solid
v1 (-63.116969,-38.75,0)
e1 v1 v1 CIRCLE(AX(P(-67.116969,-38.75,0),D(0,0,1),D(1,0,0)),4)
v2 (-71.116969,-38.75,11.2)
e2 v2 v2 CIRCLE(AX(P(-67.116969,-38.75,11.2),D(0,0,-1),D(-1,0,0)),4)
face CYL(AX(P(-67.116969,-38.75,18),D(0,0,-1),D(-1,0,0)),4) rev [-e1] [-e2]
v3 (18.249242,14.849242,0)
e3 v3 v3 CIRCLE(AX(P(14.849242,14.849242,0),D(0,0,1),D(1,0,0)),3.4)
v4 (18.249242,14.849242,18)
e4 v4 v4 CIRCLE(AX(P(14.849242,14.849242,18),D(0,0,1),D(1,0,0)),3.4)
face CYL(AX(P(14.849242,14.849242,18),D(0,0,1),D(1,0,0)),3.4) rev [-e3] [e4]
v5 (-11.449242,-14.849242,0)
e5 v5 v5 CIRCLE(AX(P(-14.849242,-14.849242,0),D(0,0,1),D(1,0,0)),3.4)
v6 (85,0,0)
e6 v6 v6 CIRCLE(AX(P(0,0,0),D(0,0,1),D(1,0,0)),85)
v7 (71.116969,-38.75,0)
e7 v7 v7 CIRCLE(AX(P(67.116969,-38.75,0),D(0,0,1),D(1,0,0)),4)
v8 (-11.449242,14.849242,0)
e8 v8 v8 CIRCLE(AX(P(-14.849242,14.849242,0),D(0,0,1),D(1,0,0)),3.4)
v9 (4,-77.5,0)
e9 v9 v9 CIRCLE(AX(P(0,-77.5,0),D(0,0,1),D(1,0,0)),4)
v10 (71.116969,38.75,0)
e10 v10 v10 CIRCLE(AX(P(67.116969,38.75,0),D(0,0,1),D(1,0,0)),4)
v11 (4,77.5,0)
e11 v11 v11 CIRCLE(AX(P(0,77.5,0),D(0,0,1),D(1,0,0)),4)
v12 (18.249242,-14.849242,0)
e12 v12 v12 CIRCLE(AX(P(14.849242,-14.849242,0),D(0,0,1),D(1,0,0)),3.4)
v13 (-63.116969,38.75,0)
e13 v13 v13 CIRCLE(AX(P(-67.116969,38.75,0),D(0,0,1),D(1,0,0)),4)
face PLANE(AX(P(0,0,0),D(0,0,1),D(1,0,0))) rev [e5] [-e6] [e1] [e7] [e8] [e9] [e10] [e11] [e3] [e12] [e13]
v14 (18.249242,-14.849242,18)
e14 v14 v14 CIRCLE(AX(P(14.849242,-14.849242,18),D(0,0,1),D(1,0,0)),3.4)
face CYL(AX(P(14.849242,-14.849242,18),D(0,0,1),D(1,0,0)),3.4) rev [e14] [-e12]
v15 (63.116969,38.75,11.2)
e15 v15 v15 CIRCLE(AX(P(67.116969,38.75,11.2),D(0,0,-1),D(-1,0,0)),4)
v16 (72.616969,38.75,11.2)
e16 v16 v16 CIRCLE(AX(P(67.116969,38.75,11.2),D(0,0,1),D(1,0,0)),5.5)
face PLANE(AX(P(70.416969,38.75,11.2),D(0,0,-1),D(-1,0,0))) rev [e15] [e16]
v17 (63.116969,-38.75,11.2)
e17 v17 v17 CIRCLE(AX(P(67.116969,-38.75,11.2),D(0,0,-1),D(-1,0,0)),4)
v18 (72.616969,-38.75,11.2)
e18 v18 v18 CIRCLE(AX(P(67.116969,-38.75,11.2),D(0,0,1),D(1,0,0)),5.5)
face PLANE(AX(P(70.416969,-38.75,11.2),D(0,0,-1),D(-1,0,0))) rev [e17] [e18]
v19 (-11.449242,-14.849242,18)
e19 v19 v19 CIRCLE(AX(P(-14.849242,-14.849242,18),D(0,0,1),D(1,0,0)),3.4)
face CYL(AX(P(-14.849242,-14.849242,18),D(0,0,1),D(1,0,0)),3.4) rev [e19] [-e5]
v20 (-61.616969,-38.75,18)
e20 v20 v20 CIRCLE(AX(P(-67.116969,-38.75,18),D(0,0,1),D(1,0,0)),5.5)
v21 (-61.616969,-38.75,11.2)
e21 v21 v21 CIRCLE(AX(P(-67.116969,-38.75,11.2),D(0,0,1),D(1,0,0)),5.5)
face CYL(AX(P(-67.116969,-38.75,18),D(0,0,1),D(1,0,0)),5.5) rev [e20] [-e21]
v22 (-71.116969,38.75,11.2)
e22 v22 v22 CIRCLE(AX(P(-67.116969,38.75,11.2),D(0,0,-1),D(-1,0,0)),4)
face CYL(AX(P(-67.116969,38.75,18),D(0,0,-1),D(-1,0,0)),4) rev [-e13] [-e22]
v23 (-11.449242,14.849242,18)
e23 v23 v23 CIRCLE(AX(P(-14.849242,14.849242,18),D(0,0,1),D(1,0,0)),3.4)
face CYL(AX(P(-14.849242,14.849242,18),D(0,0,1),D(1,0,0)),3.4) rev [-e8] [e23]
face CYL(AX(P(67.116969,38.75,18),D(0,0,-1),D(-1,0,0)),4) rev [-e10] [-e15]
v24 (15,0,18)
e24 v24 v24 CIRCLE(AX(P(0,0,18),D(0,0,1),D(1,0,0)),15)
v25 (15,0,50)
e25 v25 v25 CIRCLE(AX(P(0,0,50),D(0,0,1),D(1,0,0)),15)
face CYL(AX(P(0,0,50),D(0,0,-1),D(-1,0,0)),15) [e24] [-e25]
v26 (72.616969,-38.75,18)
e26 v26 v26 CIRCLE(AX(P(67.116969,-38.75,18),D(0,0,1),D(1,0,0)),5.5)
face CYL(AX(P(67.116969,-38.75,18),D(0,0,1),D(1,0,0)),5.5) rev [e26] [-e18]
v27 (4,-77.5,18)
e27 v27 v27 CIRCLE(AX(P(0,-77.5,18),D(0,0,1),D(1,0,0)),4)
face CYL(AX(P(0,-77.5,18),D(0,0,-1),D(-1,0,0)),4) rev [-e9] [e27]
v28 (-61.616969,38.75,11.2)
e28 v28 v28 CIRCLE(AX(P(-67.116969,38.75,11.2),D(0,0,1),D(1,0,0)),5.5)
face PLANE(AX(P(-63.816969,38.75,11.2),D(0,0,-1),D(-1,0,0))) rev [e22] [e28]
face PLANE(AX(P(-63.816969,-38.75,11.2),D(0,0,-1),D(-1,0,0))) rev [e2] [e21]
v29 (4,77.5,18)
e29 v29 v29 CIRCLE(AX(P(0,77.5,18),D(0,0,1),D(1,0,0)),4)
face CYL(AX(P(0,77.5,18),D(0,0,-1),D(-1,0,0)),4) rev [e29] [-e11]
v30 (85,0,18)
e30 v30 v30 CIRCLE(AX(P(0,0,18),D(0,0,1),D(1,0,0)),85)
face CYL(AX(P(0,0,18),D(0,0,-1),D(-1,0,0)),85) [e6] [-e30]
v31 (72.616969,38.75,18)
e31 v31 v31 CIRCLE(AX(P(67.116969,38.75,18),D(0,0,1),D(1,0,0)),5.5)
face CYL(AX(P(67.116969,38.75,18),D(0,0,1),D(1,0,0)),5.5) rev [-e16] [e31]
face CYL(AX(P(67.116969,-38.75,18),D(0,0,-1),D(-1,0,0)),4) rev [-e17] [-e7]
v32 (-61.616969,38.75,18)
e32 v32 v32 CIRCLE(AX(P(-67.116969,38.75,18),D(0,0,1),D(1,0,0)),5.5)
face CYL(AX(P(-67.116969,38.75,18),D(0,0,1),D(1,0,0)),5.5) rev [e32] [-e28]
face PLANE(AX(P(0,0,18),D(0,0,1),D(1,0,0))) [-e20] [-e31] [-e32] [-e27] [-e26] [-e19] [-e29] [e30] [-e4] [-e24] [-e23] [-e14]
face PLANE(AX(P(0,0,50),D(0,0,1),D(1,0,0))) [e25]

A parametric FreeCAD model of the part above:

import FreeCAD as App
import Part
import Sketcher

doc = App.newDocument("Part")
params = doc.addObject("Spreadsheet::Sheet", "Params")
for row, (alias, value) in enumerate([
    ("sketch1_diameter", "170 mm"),
    ("sketch1_diameter2", "8 mm"),
    ("sketch1_diameter3", "6 mm"),
    ("pad1_length", "18 mm"),
    ("sketch2_diameter", "6.6 mm"),
    ("hole_diameter", "6.6 mm"),
    ("hole_cbore_diameter", "11 mm"),
    ("hole_cbore_depth", "6.8 mm"),
    ("sketch3_diameter", "6.8 mm"),
    ("hole2_diameter", "6.8 mm"),
    ("sketch4_diameter", "30 mm"),
    ("pad2_length", "32 mm"),
], start=1):
    params.set(f"A{row}", alias)
    params.set(f"B{row}", "=" + value)
    params.setAlias(f"B{row}", alias)

body = doc.addObject("PartDesign::Body", "Body")

sketch1 = body.newObject("Sketcher::SketchObject", "Sketch")
sketch1.AttachmentSupport = (doc.getObject("XY_Plane"), [""])
sketch1.MapMode = "FlatFace"
sketch1.addGeometry([
    Part.Circle(App.Vector(0, 0, 0), App.Vector(0, 0, 1), 85),
    Part.Circle(App.Vector(-67.116969, -38.75, 0), App.Vector(0, 0, 1), 4),
    Part.Circle(App.Vector(-14.849242, -14.849242, 0), App.Vector(0, 0, 1), 3),
    Part.Circle(App.Vector(0, -77.5, 0), App.Vector(0, 0, 1), 4),
    Part.Circle(App.Vector(14.849242, -14.849242, 0), App.Vector(0, 0, 1), 3),
    Part.Circle(App.Vector(67.116969, -38.75, 0), App.Vector(0, 0, 1), 4),
    Part.Circle(App.Vector(-67.116969, 38.75, 0), App.Vector(0, 0, 1), 4),
    Part.Circle(App.Vector(-14.849242, 14.849242, 0), App.Vector(0, 0, 1), 3),
    Part.Circle(App.Vector(14.849242, 14.849242, 0), App.Vector(0, 0, 1), 3),
    Part.Circle(App.Vector(67.116969, 38.75, 0), App.Vector(0, 0, 1), 4),
    Part.Circle(App.Vector(0, 77.5, 0), App.Vector(0, 0, 1), 4),
], False)
sketch1.addConstraint([
    Sketcher.Constraint("Coincident", 0, 3, -1, 1),
    Sketcher.Constraint("Equal", 1, 3),
    Sketcher.Constraint("Equal", 2, 4),
    Sketcher.Constraint("Equal", 3, 5),
    Sketcher.Constraint("Equal", 5, 6),
    Sketcher.Constraint("Equal", 4, 7),
    Sketcher.Constraint("Equal", 7, 8),
    Sketcher.Constraint("Equal", 6, 9),
    Sketcher.Constraint("Equal", 9, 10),
    Sketcher.Constraint("Symmetric", 5, 3, 6, 3, -1, 1),
    Sketcher.Constraint("Symmetric", 4, 3, 7, 3, -1, 1),
    Sketcher.Constraint("Symmetric", 2, 3, 8, 3, -1, 1),
    Sketcher.Constraint("Symmetric", 1, 3, 9, 3, -1, 1),
    Sketcher.Constraint("Symmetric", 3, 3, 10, 3, -1, 1),
    Sketcher.Constraint("Symmetric", 2, 3, 4, 3, -2),
    Sketcher.Constraint("Symmetric", 1, 3, 5, 3, -2),
    Sketcher.Constraint("PointOnObject", 3, 3, -2),
    Sketcher.Constraint("Diameter", 0, 170.0),
    Sketcher.Constraint("Diameter", 1, 8.0),
    Sketcher.Constraint("Diameter", 2, 6.0),
    Sketcher.Constraint("DistanceY", 3, 3, -1, 1, 77.5),
    Sketcher.Constraint("DistanceY", 1, 3, 6, 3, 77.5),
    Sketcher.Constraint("DistanceX", 1, 3, -1, 1, 67.116969),
    Sketcher.Constraint("DistanceX", 1, 3, 4, 3, 81.966211),
    Sketcher.Constraint("DistanceY", 2, 3, -1, 1, 14.849242),
])
sketch1.setExpression("Constraints[17]", "Params.sketch1_diameter")
sketch1.setExpression("Constraints[18]", "Params.sketch1_diameter2")
sketch1.setExpression("Constraints[19]", "Params.sketch1_diameter3")
pad1 = body.newObject("PartDesign::Pad", "Pad")
pad1.Profile = sketch1
pad1.setExpression("Length", "Params.pad1_length")

sketch2 = body.newObject("Sketcher::SketchObject", "Sketch001")
sketch2.AttachmentSupport = (doc.getObject("XY_Plane"), [""])
sketch2.MapMode = "FlatFace"
sketch2.AttachmentOffset = App.Placement(App.Vector(0, 0, 18), App.Rotation())
sketch2.addGeometry([
    Part.Circle(App.Vector(-67.116969, 38.75, 0), App.Vector(0, 0, 1), 3.3),
    Part.Circle(App.Vector(67.116969, 38.75, 0), App.Vector(0, 0, 1), 3.3),
    Part.Circle(App.Vector(67.116969, -38.75, 0), App.Vector(0, 0, 1), 3.3),
    Part.Circle(App.Vector(-67.116969, -38.75, 0), App.Vector(0, 0, 1), 3.3),
], False)
sketch2.addConstraint([
    Sketcher.Constraint("Equal", 0, 1),
    Sketcher.Constraint("Equal", 1, 2),
    Sketcher.Constraint("Equal", 2, 3),
    Sketcher.Constraint("Symmetric", 0, 3, 2, 3, -1, 1),
    Sketcher.Constraint("Symmetric", 1, 3, 3, 3, -1, 1),
    Sketcher.Constraint("Symmetric", 0, 3, 1, 3, -2),
    Sketcher.Constraint("Diameter", 0, 6.6),
    Sketcher.Constraint("DistanceY", 2, 3, 1, 3, 77.5),
    Sketcher.Constraint("DistanceX", 0, 3, -1, 1, 67.116969),
])
sketch2.setExpression("Constraints[6]", "Params.sketch2_diameter")
doc.recompute()
hole = body.newObject("PartDesign::Hole", "Hole")
hole.Profile = sketch2
hole.ThreadType = "None"
hole.setExpression("Diameter", "Params.hole_diameter")
hole.DepthType = "ThroughAll"
hole.HoleCutType = "Counterbore"
hole.setExpression("HoleCutDiameter", "Params.hole_cbore_diameter")
hole.setExpression("HoleCutDepth", "Params.hole_cbore_depth")

sketch3 = body.newObject("Sketcher::SketchObject", "Sketch002")
sketch3.AttachmentSupport = (doc.getObject("XY_Plane"), [""])
sketch3.MapMode = "FlatFace"
sketch3.AttachmentOffset = App.Placement(App.Vector(0, 0, 18), App.Rotation())
sketch3.addGeometry([
    Part.Circle(App.Vector(-14.849242, 14.849242, 0), App.Vector(0, 0, 1), 3.4),
    Part.Circle(App.Vector(14.849242, 14.849242, 0), App.Vector(0, 0, 1), 3.4),
    Part.Circle(App.Vector(14.849242, -14.849242, 0), App.Vector(0, 0, 1), 3.4),
    Part.Circle(App.Vector(-14.849242, -14.849242, 0), App.Vector(0, 0, 1), 3.4),
], False)
sketch3.addConstraint([
    Sketcher.Constraint("Equal", 0, 1),
    Sketcher.Constraint("Equal", 1, 2),
    Sketcher.Constraint("Equal", 2, 3),
    Sketcher.Constraint("Symmetric", 0, 3, 2, 3, -1, 1),
    Sketcher.Constraint("Symmetric", 1, 3, 3, 3, -1, 1),
    Sketcher.Constraint("Symmetric", 0, 3, 1, 3, -2),
    Sketcher.Constraint("Diameter", 0, 6.8),
    Sketcher.Constraint("DistanceX", 0, 3, -1, 1, 14.849242),
    Sketcher.Constraint("DistanceY", -1, 1, 0, 3, 14.849242),
])
sketch3.setExpression("Constraints[6]", "Params.sketch3_diameter")
doc.recompute()
hole2 = body.newObject("PartDesign::Hole", "Hole001")
hole2.Profile = sketch3
hole2.ThreadType = "None"
hole2.setExpression("Diameter", "Params.hole2_diameter")
hole2.DepthType = "ThroughAll"

sketch4 = body.newObject("Sketcher::SketchObject", "Sketch003")
sketch4.AttachmentSupport = (doc.getObject("XY_Plane"), [""])
sketch4.MapMode = "FlatFace"
sketch4.AttachmentOffset = App.Placement(App.Vector(0, 0, 18), App.Rotation())
sketch4.addGeometry(Part.Circle(App.Vector(0, 0, 0), App.Vector(0, 0, 1), 15), False)
sketch4.addConstraint([
    Sketcher.Constraint("Coincident", 0, 3, -1, 1),
    Sketcher.Constraint("Diameter", 0, 30.0),
])
sketch4.setExpression("Constraints[1]", "Params.sketch4_diameter")
pad2 = body.newObject("PartDesign::Pad", "Pad001")
pad2.Profile = sketch4
pad2.setExpression("Length", "Params.pad2_length")

doc.recompute()
